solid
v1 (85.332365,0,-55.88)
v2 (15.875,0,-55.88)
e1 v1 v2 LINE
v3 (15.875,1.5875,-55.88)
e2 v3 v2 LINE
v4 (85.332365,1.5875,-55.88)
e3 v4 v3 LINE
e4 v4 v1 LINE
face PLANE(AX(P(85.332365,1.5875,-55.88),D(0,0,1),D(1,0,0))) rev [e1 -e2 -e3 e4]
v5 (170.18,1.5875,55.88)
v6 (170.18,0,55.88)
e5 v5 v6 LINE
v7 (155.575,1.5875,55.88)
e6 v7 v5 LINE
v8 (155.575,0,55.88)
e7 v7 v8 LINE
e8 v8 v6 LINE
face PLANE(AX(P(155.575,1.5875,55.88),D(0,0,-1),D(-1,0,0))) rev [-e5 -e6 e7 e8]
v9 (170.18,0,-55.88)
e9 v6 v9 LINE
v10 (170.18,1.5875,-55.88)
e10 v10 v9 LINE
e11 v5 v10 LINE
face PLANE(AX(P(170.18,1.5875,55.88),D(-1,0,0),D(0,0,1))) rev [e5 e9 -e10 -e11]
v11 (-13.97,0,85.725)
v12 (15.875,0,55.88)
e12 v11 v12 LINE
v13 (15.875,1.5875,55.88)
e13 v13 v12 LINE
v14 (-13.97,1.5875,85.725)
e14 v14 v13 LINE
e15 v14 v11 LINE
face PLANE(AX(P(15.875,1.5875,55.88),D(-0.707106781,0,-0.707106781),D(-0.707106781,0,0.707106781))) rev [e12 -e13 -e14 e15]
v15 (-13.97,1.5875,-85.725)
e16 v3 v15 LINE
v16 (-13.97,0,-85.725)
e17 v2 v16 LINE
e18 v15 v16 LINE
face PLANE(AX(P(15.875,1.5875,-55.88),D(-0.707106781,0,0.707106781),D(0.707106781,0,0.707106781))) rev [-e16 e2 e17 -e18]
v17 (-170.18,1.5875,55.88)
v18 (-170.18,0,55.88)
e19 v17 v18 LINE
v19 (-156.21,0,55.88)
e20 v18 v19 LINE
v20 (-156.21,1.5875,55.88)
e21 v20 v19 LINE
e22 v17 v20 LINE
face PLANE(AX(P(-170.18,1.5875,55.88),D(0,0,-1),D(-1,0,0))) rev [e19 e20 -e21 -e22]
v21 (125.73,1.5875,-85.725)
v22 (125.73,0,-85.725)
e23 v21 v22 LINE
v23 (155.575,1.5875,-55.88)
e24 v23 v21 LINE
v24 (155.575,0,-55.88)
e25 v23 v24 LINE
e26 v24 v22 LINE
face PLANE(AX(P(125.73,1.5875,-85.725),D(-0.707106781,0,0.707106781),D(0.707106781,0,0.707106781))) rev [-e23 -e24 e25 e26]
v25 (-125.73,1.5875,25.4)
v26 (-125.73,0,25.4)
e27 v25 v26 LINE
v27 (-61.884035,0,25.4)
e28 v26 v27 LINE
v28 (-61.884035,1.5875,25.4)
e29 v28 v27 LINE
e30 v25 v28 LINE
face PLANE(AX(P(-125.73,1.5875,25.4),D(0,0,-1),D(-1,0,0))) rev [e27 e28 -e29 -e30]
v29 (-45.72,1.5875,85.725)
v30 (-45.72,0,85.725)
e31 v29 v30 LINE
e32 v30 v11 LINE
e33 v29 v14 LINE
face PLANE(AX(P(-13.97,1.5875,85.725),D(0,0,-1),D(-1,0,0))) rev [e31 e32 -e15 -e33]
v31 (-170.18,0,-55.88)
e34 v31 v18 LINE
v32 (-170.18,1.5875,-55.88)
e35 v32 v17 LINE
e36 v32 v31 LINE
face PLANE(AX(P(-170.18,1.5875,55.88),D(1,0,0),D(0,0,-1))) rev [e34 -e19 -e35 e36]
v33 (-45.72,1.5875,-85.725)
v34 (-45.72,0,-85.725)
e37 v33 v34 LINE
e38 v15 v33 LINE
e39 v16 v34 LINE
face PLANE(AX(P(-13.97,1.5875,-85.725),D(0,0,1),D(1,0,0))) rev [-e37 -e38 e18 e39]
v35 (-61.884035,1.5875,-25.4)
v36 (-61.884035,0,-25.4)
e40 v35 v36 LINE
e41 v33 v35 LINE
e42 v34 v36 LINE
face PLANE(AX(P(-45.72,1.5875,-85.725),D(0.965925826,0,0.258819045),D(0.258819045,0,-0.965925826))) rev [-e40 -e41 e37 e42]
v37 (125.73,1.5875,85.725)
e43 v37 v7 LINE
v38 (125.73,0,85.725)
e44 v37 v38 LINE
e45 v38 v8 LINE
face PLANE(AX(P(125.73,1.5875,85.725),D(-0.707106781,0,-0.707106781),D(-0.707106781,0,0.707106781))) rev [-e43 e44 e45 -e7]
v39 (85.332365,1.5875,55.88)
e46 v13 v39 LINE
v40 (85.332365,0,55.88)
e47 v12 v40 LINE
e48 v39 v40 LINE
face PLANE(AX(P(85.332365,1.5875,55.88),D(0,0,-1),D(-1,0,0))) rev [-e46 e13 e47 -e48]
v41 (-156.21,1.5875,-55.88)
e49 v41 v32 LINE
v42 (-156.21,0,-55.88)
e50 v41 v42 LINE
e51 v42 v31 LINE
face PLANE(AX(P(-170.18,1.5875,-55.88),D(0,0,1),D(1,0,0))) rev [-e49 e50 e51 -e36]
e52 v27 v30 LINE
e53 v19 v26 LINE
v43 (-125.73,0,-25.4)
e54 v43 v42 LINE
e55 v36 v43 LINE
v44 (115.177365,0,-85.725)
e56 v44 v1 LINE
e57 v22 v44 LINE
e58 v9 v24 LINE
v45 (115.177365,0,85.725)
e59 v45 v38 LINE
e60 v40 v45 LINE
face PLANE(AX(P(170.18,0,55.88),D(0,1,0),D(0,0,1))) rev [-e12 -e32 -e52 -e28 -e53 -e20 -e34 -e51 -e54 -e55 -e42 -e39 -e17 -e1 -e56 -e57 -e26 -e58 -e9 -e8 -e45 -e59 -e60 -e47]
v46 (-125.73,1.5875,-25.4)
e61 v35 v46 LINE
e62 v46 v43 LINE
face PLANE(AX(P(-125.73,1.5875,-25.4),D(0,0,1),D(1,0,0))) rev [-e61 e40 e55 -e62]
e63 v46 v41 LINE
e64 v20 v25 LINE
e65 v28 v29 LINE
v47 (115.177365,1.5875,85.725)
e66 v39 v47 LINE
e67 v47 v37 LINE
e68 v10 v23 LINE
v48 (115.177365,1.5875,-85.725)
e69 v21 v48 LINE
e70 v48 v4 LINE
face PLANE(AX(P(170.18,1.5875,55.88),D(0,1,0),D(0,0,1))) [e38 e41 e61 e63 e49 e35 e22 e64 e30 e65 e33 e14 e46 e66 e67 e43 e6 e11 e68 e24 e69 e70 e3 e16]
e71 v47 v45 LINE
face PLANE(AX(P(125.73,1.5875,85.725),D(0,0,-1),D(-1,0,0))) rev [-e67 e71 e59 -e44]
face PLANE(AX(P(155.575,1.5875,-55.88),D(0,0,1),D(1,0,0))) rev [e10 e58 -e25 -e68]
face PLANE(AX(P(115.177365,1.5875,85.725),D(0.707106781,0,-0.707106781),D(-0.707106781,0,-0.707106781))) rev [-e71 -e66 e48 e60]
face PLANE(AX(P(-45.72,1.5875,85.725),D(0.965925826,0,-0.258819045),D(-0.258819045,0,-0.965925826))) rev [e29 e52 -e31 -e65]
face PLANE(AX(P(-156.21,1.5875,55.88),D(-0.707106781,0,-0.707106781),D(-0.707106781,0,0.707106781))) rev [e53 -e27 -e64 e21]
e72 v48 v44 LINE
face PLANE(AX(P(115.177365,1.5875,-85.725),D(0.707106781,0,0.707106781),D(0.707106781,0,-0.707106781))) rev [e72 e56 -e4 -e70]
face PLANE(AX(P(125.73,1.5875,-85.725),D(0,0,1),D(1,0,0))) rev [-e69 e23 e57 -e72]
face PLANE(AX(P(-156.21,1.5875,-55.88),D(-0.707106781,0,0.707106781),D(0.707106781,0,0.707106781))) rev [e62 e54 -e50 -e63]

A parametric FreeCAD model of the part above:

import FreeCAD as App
import Part
import Sketcher
Q = App.Units.Quantity

doc = App.newDocument("Part")
body = doc.addObject("PartDesign::Body", "Body")

sketch1 = doc.addObject("Sketcher::SketchObject", "Sketch")
body.addObject(sketch1)
sketch1.AttachmentSupport = (doc.XZ_Plane, [""])
sketch1.MapMode = "FlatFace"
sketch1.addGeometry(Part.LineSegment(App.Vector(115, 86, 0), App.Vector(126, 86, 0)), False)
sketch1.addGeometry(Part.LineSegment(App.Vector(126, 86, 0), App.Vector(156, 56, 0)), False)
sketch1.addGeometry(Part.LineSegment(App.Vector(156, 56, 0), App.Vector(170, 56, 0)), False)
sketch1.addGeometry(Part.LineSegment(App.Vector(170, 56, 0), App.Vector(170, -56, 0)), False)
sketch1.addGeometry(Part.LineSegment(App.Vector(170, -56, 0), App.Vector(156, -56, 0)), False)
sketch1.addGeometry(Part.LineSegment(App.Vector(156, -56, 0), App.Vector(126, -86, 0)), False)
sketch1.addGeometry(Part.LineSegment(App.Vector(126, -86, 0), App.Vector(115, -86, 0)), False)
sketch1.addGeometry(Part.LineSegment(App.Vector(115, -86, 0), App.Vector(85, -56, 0)), False)
sketch1.addGeometry(Part.LineSegment(App.Vector(85, -56, 0), App.Vector(16, -56, 0)), False)
sketch1.addGeometry(Part.LineSegment(App.Vector(16, -56, 0), App.Vector(-14, -86, 0)), False)
sketch1.addGeometry(Part.LineSegment(App.Vector(-14, -86, 0), App.Vector(-46, -86, 0)), False)
sketch1.addGeometry(Part.LineSegment(App.Vector(-46, -86, 0), App.Vector(-62, -25, 0)), False)
sketch1.addGeometry(Part.LineSegment(App.Vector(-62, -25, 0), App.Vector(-126, -25, 0)), False)
sketch1.addGeometry(Part.LineSegment(App.Vector(-126, -25, 0), App.Vector(-156, -56, 0)), False)
sketch1.addGeometry(Part.LineSegment(App.Vector(-156, -56, 0), App.Vector(-170, -56, 0)), False)
sketch1.addGeometry(Part.LineSegment(App.Vector(-170, -56, 0), App.Vector(-170, 56, 0)), False)
sketch1.addGeometry(Part.LineSegment(App.Vector(-170, 56, 0), App.Vector(-156, 56, 0)), False)
sketch1.addGeometry(Part.LineSegment(App.Vector(-156, 56, 0), App.Vector(-126, 25, 0)), False)
sketch1.addGeometry(Part.LineSegment(App.Vector(-126, 25, 0), App.Vector(-62, 25, 0)), False)
sketch1.addGeometry(Part.LineSegment(App.Vector(-62, 25, 0), App.Vector(-46, 86, 0)), False)
sketch1.addGeometry(Part.LineSegment(App.Vector(-46, 86, 0), App.Vector(-14, 86, 0)), False)
sketch1.addGeometry(Part.LineSegment(App.Vector(-14, 86, 0), App.Vector(16, 56, 0)), False)
sketch1.addGeometry(Part.LineSegment(App.Vector(16, 56, 0), App.Vector(85, 56, 0)), False)
sketch1.addGeometry(Part.LineSegment(App.Vector(85, 56, 0), App.Vector(115, 86, 0)), False)
sketch1.addConstraint(Sketcher.Constraint("Coincident", 0, 2, 1, 1))
sketch1.addConstraint(Sketcher.Constraint("Coincident", 1, 2, 2, 1))
sketch1.addConstraint(Sketcher.Constraint("Coincident", 2, 2, 3, 1))
sketch1.addConstraint(Sketcher.Constraint("Coincident", 3, 2, 4, 1))
sketch1.addConstraint(Sketcher.Constraint("Coincident", 4, 2, 5, 1))
sketch1.addConstraint(Sketcher.Constraint("Coincident", 5, 2, 6, 1))
sketch1.addConstraint(Sketcher.Constraint("Coincident", 6, 2, 7, 1))
sketch1.addConstraint(Sketcher.Constraint("Coincident", 7, 2, 8, 1))
sketch1.addConstraint(Sketcher.Constraint("Coincident", 8, 2, 9, 1))
sketch1.addConstraint(Sketcher.Constraint("Coincident", 9, 2, 10, 1))
sketch1.addConstraint(Sketcher.Constraint("Coincident", 10, 2, 11, 1))
sketch1.addConstraint(Sketcher.Constraint("Coincident", 11, 2, 12, 1))
sketch1.addConstraint(Sketcher.Constraint("Coincident", 12, 2, 13, 1))
sketch1.addConstraint(Sketcher.Constraint("Coincident", 13, 2, 14, 1))
sketch1.addConstraint(Sketcher.Constraint("Coincident", 14, 2, 15, 1))
sketch1.addConstraint(Sketcher.Constraint("Coincident", 15, 2, 16, 1))
sketch1.addConstraint(Sketcher.Constraint("Coincident", 16, 2, 17, 1))
sketch1.addConstraint(Sketcher.Constraint("Coincident", 17, 2, 18, 1))
sketch1.addConstraint(Sketcher.Constraint("Coincident", 18, 2, 19, 1))
sketch1.addConstraint(Sketcher.Constraint("Coincident", 19, 2, 20, 1))
sketch1.addConstraint(Sketcher.Constraint("Coincident", 20, 2, 21, 1))
sketch1.addConstraint(Sketcher.Constraint("Coincident", 21, 2, 22, 1))
sketch1.addConstraint(Sketcher.Constraint("Coincident", 22, 2, 23, 1))
sketch1.addConstraint(Sketcher.Constraint("Coincident", 23, 2, 0, 1))
sketch1.addConstraint(Sketcher.Constraint("Horizontal", 0))
sketch1.addConstraint(Sketcher.Constraint("Horizontal", 2))
sketch1.addConstraint(Sketcher.Constraint("Vertical", 3))
sketch1.addConstraint(Sketcher.Constraint("Horizontal", 4))
sketch1.addConstraint(Sketcher.Constraint("Horizontal", 6))
sketch1.addConstraint(Sketcher.Constraint("Horizontal", 8))
sketch1.addConstraint(Sketcher.Constraint("Horizontal", 10))
sketch1.addConstraint(Sketcher.Constraint("Horizontal", 12))
sketch1.addConstraint(Sketcher.Constraint("Horizontal", 14))
sketch1.addConstraint(Sketcher.Constraint("Vertical", 15))
sketch1.addConstraint(Sketcher.Constraint("Horizontal", 16))
sketch1.addConstraint(Sketcher.Constraint("Horizontal", 18))
sketch1.addConstraint(Sketcher.Constraint("Horizontal", 20))
sketch1.addConstraint(Sketcher.Constraint("Horizontal", 22))
sketch1.addConstraint(Sketcher.Constraint("Symmetric", 2, 2, 14, 2, -1, 1))
sketch1.addConstraint(Sketcher.Constraint("Symmetric", 1, 2, 4, 2, -1))
sketch1.addConstraint(Sketcher.Constraint("Symmetric", 0, 2, 5, 2, -1))
sketch1.addConstraint(Sketcher.Constraint("Symmetric", 13, 2, 16, 2, -1))
sketch1.addConstraint(Sketcher.Constraint("Symmetric", 12, 2, 17, 2, -1))
sketch1.addConstraint(Sketcher.Constraint("Symmetric", 10, 2, 19, 2, -1))
sketch1.addConstraint(Sketcher.Constraint("Symmetric", 8, 2, 21, 2, -1))
sketch1.addConstraint(Sketcher.Constraint("Perpendicular", 1, 5))
sketch1.addConstraint(Sketcher.Constraint("Perpendicular", 5, 7))
sketch1.addConstraint(Sketcher.Constraint("Perpendicular", 7, 9))
sketch1.addConstraint(Sketcher.Constraint("Parallel", 9, 13))
sketch1.addConstraint(Sketcher.Constraint("Parallel", 17, 21))
sketch1.addConstraint(Sketcher.Constraint("Perpendicular", 21, 23))
sketch1.addConstraint(Sketcher.Constraint("Horizontal", 4, 2, 7, 2))
sketch1.addConstraint(Sketcher.Constraint("Horizontal", 6, 2, 9, 2))
sketch1.addConstraint(Sketcher.Constraint("Vertical", 11, 2, 18, 2))
sketch1.addConstraint(Sketcher.Constraint("Vertical", 7, 2, 22, 2))
sketch1.addConstraint(Sketcher.Constraint("DistanceY", 3, 2, 3, 1, Q("4.4 in")))
sketch1.addConstraint(Sketcher.Constraint("DistanceY", 11, 2, -1, 1, Q("1 in")))
sketch1.addConstraint(Sketcher.Constraint("Angle", 11, Q("105 deg")))
sketch1.addConstraint(Sketcher.Constraint("DistanceX", 10, 2, 10, 1, Q("1.25 in")))
sketch1.addConstraint(Sketcher.Constraint("DistanceX", 14, 2, 14, 1, Q("0.55 in")))
sketch1.addConstraint(Sketcher.Constraint("DistanceX", -1, 1, 2, 2, Q("6.7 in")))
sketch1.addConstraint(Sketcher.Constraint("DistanceX", 10, 2, -1, 1, Q("1.8 in")))
sketch1.addConstraint(Sketcher.Constraint("DistanceX", 8, 2, 4, 2, Q("5.5 in")))
sketch1.addConstraint(Sketcher.Constraint("DistanceX", 2, 1, 2, 2, Q("0.575 in")))
sketch1.addConstraint(Sketcher.Constraint("DistanceX", 11, 2, 7, 2, 147.2164))
pad1 = doc.addObject("PartDesign::Pad", "Pad")
body.addObject(pad1)
pad1.Profile = sketch1
pad1.Length = Q("0.0625 in")
pad1.Reversed = True

doc.recompute()
